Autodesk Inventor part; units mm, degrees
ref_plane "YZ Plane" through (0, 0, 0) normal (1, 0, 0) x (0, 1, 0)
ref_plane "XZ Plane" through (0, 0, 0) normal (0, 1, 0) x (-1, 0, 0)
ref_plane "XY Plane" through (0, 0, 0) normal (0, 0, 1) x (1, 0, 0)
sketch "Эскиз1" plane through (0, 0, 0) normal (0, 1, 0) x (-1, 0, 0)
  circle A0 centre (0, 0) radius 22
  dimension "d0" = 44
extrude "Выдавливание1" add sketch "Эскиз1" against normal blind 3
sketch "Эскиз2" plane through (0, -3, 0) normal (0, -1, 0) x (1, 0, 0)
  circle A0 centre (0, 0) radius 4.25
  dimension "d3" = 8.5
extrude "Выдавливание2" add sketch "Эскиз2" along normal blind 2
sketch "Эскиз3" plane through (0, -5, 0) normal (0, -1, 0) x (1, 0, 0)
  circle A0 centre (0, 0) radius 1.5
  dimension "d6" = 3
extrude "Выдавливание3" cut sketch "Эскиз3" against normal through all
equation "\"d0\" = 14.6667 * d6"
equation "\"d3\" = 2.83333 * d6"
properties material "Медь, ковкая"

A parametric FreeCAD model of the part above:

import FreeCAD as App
import Part
import Sketcher

doc = App.newDocument("Part")
body = doc.addObject("PartDesign::Body", "Body")

# Sketch on XZ plane
sketch1 = body.newObject("Sketcher::SketchObject", "Sketch")
sketch1.AttachmentSupport = (doc.getObject("XZ_Plane"), [""])
sketch1.MapMode = "FlatFace"
sketch1.addGeometry(Part.Circle(App.Vector(0, 0, 0), App.Vector(0, 0, 1), 22), False)
sketch1.addConstraint(Sketcher.Constraint("Coincident", 0, 3, -1, 1))
sketch1.addConstraint(Sketcher.Constraint("Diameter", 0, 44.0))
pad1 = body.newObject("PartDesign::Pad", "Pad")
pad1.Profile = sketch1
pad1.Length = 3

# Sketch on XZ plane
sketch2 = body.newObject("Sketcher::SketchObject", "Sketch001")
sketch2.AttachmentSupport = (doc.getObject("XZ_Plane"), [""])
sketch2.MapMode = "FlatFace"
sketch2.AttachmentOffset = App.Placement(App.Vector(0, 0, 3), App.Rotation())
sketch2.addGeometry(Part.Circle(App.Vector(0, 0, 0), App.Vector(0, 0, 1), 4.2), False)
sketch2.addConstraint(Sketcher.Constraint("Coincident", 0, 3, -1, 1))
sketch2.addConstraint(Sketcher.Constraint("Diameter", 0, 8.5))
pad2 = body.newObject("PartDesign::Pad", "Pad001")
pad2.Profile = sketch2
pad2.Length = 2

# Sketch on XZ plane
sketch3 = body.newObject("Sketcher::SketchObject", "Sketch002")
sketch3.AttachmentSupport = (doc.getObject("XZ_Plane"), [""])
sketch3.MapMode = "FlatFace"
sketch3.AttachmentOffset = App.Placement(App.Vector(0, 0, 5), App.Rotation())
sketch3.addGeometry(Part.Circle(App.Vector(0, 0, 0), App.Vector(0, 0, 1), 1.5), False)
sketch3.addConstraint(Sketcher.Constraint("Coincident", 0, 3, -1, 1))
sketch3.addConstraint(Sketcher.Constraint("Diameter", 0, 3.0))
pocket1 = body.newObject("PartDesign::Pocket", "Pocket")
pocket1.Profile = sketch3
pocket1.Type = "ThroughAll"

doc.recompute()
